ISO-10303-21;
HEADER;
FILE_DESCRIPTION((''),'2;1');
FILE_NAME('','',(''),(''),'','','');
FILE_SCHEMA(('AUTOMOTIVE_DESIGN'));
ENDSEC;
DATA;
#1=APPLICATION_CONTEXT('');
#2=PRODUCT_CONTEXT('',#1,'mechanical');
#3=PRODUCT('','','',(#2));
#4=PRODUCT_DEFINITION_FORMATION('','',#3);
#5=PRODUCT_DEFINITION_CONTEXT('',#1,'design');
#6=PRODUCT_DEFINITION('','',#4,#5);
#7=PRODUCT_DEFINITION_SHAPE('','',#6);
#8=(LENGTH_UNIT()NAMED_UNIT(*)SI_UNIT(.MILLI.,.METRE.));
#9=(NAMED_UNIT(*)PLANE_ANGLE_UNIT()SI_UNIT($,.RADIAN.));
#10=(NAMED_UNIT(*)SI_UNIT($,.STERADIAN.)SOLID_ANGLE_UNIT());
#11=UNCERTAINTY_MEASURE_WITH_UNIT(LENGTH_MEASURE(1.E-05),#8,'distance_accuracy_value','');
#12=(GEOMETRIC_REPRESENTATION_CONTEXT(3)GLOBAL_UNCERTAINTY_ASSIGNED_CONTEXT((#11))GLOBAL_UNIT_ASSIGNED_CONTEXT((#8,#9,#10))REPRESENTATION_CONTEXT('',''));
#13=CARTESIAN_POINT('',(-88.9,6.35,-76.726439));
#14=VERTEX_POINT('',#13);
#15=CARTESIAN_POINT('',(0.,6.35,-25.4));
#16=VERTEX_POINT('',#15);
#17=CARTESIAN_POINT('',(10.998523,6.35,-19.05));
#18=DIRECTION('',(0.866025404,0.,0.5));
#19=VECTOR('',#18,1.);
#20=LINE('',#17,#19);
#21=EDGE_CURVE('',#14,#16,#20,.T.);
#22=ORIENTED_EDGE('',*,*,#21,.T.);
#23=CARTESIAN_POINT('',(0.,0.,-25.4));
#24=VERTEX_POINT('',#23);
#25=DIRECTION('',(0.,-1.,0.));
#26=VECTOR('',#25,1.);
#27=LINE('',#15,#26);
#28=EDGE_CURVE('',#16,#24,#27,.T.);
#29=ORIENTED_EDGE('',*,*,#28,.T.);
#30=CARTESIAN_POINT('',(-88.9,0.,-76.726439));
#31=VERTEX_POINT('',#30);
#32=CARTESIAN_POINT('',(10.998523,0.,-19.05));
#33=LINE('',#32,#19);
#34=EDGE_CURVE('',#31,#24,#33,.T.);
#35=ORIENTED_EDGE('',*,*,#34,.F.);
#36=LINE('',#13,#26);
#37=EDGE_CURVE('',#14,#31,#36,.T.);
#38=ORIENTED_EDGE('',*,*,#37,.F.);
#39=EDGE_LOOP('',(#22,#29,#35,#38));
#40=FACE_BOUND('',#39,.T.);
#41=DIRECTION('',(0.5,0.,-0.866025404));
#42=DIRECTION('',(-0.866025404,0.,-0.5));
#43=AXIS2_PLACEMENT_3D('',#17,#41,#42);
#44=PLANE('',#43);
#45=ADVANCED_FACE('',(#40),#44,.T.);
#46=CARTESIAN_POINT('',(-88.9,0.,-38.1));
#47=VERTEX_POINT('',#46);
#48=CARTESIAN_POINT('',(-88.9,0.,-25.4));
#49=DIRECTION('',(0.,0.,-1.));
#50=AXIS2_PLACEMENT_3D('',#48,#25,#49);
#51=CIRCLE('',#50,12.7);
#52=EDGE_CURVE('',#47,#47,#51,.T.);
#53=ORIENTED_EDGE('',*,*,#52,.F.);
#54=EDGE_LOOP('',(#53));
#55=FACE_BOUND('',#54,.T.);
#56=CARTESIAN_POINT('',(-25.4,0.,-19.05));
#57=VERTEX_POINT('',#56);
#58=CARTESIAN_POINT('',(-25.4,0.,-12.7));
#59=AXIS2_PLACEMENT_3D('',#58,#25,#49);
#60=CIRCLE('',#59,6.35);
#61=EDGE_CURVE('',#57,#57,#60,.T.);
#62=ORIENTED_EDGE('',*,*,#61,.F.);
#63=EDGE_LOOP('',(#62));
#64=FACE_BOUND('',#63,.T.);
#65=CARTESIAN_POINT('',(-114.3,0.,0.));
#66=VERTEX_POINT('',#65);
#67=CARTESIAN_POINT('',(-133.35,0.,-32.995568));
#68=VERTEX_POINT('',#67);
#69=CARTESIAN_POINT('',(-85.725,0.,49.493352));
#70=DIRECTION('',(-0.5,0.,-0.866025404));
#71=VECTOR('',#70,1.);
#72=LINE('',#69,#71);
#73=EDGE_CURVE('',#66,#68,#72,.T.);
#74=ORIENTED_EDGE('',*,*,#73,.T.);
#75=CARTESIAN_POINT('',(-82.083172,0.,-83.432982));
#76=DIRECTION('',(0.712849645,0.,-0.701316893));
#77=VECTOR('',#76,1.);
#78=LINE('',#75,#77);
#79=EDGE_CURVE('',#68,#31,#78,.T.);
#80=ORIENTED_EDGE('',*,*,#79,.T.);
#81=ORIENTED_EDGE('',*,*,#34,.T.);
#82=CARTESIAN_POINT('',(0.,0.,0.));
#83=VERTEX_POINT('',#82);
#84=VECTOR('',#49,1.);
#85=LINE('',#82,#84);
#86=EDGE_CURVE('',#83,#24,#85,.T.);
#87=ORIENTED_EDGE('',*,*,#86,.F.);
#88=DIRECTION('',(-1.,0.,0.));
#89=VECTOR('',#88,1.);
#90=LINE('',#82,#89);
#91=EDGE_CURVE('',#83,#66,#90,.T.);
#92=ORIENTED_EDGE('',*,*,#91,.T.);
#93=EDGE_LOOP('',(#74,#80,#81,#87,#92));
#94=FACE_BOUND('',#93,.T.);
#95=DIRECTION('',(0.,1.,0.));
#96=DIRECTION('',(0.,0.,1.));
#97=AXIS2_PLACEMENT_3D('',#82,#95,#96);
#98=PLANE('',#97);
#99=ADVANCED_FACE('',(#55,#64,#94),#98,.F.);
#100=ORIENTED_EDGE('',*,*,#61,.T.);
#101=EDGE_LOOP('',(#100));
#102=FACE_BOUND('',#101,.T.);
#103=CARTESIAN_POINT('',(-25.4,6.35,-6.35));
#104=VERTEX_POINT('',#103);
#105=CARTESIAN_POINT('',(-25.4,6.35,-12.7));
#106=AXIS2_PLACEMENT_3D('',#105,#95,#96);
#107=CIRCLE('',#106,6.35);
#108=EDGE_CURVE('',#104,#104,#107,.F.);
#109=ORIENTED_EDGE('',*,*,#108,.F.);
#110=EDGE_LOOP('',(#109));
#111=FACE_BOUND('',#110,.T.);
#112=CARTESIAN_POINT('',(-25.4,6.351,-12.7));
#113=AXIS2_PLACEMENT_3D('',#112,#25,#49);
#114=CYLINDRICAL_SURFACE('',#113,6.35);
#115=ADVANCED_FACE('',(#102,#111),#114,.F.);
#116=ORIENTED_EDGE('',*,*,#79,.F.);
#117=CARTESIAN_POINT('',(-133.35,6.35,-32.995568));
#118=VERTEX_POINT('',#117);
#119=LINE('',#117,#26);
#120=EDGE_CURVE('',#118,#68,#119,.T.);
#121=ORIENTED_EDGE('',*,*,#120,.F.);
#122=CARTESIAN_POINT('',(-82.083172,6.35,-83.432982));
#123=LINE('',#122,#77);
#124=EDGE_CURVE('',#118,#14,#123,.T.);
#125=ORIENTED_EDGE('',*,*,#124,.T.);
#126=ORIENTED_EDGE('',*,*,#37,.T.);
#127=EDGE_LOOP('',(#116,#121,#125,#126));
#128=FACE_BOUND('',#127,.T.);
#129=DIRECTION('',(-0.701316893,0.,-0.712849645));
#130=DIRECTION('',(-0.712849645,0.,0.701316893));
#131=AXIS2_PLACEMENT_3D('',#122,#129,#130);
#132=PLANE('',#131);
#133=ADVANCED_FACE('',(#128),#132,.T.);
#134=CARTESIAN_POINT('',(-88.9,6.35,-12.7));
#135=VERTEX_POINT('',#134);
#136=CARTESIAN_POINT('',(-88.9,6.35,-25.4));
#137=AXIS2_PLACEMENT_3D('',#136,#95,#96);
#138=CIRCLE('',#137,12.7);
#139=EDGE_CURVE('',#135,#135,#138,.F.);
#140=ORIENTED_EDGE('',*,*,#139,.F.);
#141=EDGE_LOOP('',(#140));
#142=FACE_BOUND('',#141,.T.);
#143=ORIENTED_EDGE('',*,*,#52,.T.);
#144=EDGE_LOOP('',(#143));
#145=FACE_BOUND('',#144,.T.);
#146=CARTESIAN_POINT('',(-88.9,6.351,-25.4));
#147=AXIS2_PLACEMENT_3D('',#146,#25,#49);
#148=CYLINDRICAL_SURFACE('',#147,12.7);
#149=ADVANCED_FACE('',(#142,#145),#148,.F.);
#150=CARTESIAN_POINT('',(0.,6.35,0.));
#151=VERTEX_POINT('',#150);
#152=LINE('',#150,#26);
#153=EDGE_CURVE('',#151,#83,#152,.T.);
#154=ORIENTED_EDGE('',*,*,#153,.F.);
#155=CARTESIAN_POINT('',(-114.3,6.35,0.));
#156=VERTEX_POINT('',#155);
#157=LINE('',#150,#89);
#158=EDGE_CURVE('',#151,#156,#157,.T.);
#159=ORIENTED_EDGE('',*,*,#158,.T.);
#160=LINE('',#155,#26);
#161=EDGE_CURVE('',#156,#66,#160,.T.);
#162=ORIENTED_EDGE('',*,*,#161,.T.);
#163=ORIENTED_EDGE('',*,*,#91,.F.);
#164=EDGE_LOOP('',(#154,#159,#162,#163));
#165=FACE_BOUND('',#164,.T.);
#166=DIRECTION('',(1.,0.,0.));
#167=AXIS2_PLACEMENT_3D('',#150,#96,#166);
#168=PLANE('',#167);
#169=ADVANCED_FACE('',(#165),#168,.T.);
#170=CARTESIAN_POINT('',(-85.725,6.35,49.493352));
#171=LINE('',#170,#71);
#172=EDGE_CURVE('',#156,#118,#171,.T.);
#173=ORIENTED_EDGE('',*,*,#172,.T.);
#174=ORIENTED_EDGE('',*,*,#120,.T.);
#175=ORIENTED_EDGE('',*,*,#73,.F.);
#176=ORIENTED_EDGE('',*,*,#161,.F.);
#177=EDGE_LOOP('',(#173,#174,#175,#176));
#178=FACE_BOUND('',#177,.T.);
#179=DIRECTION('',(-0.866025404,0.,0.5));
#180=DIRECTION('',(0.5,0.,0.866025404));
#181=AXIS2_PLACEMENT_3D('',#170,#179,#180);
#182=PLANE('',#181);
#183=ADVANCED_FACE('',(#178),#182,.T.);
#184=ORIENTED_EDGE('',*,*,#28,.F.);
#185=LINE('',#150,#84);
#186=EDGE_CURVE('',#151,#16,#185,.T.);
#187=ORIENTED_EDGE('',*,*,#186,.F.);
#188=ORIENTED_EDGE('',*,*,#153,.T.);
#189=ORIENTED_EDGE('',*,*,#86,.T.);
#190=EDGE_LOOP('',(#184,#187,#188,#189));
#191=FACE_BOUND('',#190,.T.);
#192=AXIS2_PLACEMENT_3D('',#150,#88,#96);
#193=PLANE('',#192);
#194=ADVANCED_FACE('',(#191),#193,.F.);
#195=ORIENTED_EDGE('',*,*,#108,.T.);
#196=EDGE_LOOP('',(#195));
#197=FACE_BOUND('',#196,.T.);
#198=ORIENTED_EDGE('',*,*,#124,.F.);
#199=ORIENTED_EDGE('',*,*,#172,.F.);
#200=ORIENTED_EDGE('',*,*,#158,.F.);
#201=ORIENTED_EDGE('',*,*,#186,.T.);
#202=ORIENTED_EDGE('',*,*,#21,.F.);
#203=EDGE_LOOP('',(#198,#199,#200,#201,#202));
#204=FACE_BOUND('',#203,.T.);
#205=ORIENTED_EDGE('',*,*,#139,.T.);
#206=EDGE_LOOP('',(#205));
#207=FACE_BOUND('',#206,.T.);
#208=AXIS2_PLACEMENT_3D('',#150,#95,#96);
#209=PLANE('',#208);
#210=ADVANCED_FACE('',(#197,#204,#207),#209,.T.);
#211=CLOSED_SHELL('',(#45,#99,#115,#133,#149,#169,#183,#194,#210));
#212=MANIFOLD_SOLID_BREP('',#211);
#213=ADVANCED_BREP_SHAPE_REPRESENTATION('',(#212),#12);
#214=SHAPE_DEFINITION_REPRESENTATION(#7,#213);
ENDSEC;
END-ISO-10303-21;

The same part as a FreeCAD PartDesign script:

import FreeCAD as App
import Part
import Sketcher
from FreeCAD import Vector
Q = App.Units.Quantity


def add_polygon(sketch, points):
    """Adds a closed chain of lines whose ends are joined by coincident constraints."""
    first, n = sketch.GeometryCount, len(points)
    for a, b in zip(points, points[1:] + points[:1]):
        sketch.addGeometry(Part.LineSegment(App.Vector(*a, 0), App.Vector(*b, 0)), False)
    for i in range(n):
        sketch.addConstraint(Sketcher.Constraint("Coincident", first + i, 2, first + (i + 1) % n, 1))

doc = App.newDocument("Part")
body = doc.addObject("PartDesign::Body", "Body")

# Sketch on XZ plane
sketch1 = body.newObject("Sketcher::SketchObject", "Sketch")
sketch1.AttachmentSupport = (doc.getObject("XZ_Plane"), [""])
sketch1.MapMode = "FlatFace"
add_polygon(sketch1, [(-114, 0), (0, 0), (0, -25), (-89, -77), (-133, -33)])  # lines 0-4
sketch1.addConstraint([
    Sketcher.Constraint("Horizontal", 0),
    Sketcher.Constraint("Vertical", 1),
    Sketcher.Constraint("Coincident", 0, 2, -1, 1),
    Sketcher.Constraint("DistanceY", 1, 2, 1, 1, Q("1 in")),
    Sketcher.Constraint("DistanceX", 0, 1, 0, 2, Q("4.5 in")),
    Sketcher.Constraint("Angle", 2, Q("-150 deg")),
    Sketcher.Constraint("Angle", 4, Q("60 deg")),
    Sketcher.Constraint("DistanceX", 4, 2, 2, 2, Q("1 in")),
    Sketcher.Constraint("Distance", 4, Q("1.5 in")),
])
pad1 = body.newObject("PartDesign::Pad", "Pad")
pad1.Profile = sketch1
pad1.Length = Q("0.25 in")
pad1.Reversed = True

# Sketch on XZ plane
sketch2 = body.newObject("Sketcher::SketchObject", "Sketch001")
sketch2.AttachmentSupport = (doc.getObject("XZ_Plane"), [""])
sketch2.MapMode = "FlatFace"
sketch2.addGeometry(Part.Circle(Vector(-89, -25, 0), Vector(0, 0, 1), 13), False)
sketch2.addConstraint([
    Sketcher.Constraint("Diameter", 0, Q("1 in")),
    Sketcher.Constraint("DistanceY", 0, 3, -1, 1, Q("1 in")),
    Sketcher.Constraint("DistanceX", 0, 3, -1, 1, Q("3.5 in")),
])
pocket1 = body.newObject("PartDesign::Pocket", "Pocket")
pocket1.Profile = sketch2
pocket1.Type = "UpToFirst"

# Sketch on XZ plane
sketch3 = body.newObject("Sketcher::SketchObject", "Sketch002")
sketch3.AttachmentSupport = (doc.getObject("XZ_Plane"), [""])
sketch3.MapMode = "FlatFace"
sketch3.addGeometry(Part.Circle(Vector(-25, -13, 0), Vector(0, 0, 1), 6), False)
sketch3.addConstraint([
    Sketcher.Constraint("Diameter", 0, Q("0.5 in")),
    Sketcher.Constraint("DistanceX", 0, 3, -1, 1, Q("1 in")),
    Sketcher.Constraint("DistanceY", 0, 3, -1, 1, Q("0.5 in")),
])
pocket2 = body.newObject("PartDesign::Pocket", "Pocket001")
pocket2.Profile = sketch3
pocket2.Type = "UpToFirst"

doc.recompute()
